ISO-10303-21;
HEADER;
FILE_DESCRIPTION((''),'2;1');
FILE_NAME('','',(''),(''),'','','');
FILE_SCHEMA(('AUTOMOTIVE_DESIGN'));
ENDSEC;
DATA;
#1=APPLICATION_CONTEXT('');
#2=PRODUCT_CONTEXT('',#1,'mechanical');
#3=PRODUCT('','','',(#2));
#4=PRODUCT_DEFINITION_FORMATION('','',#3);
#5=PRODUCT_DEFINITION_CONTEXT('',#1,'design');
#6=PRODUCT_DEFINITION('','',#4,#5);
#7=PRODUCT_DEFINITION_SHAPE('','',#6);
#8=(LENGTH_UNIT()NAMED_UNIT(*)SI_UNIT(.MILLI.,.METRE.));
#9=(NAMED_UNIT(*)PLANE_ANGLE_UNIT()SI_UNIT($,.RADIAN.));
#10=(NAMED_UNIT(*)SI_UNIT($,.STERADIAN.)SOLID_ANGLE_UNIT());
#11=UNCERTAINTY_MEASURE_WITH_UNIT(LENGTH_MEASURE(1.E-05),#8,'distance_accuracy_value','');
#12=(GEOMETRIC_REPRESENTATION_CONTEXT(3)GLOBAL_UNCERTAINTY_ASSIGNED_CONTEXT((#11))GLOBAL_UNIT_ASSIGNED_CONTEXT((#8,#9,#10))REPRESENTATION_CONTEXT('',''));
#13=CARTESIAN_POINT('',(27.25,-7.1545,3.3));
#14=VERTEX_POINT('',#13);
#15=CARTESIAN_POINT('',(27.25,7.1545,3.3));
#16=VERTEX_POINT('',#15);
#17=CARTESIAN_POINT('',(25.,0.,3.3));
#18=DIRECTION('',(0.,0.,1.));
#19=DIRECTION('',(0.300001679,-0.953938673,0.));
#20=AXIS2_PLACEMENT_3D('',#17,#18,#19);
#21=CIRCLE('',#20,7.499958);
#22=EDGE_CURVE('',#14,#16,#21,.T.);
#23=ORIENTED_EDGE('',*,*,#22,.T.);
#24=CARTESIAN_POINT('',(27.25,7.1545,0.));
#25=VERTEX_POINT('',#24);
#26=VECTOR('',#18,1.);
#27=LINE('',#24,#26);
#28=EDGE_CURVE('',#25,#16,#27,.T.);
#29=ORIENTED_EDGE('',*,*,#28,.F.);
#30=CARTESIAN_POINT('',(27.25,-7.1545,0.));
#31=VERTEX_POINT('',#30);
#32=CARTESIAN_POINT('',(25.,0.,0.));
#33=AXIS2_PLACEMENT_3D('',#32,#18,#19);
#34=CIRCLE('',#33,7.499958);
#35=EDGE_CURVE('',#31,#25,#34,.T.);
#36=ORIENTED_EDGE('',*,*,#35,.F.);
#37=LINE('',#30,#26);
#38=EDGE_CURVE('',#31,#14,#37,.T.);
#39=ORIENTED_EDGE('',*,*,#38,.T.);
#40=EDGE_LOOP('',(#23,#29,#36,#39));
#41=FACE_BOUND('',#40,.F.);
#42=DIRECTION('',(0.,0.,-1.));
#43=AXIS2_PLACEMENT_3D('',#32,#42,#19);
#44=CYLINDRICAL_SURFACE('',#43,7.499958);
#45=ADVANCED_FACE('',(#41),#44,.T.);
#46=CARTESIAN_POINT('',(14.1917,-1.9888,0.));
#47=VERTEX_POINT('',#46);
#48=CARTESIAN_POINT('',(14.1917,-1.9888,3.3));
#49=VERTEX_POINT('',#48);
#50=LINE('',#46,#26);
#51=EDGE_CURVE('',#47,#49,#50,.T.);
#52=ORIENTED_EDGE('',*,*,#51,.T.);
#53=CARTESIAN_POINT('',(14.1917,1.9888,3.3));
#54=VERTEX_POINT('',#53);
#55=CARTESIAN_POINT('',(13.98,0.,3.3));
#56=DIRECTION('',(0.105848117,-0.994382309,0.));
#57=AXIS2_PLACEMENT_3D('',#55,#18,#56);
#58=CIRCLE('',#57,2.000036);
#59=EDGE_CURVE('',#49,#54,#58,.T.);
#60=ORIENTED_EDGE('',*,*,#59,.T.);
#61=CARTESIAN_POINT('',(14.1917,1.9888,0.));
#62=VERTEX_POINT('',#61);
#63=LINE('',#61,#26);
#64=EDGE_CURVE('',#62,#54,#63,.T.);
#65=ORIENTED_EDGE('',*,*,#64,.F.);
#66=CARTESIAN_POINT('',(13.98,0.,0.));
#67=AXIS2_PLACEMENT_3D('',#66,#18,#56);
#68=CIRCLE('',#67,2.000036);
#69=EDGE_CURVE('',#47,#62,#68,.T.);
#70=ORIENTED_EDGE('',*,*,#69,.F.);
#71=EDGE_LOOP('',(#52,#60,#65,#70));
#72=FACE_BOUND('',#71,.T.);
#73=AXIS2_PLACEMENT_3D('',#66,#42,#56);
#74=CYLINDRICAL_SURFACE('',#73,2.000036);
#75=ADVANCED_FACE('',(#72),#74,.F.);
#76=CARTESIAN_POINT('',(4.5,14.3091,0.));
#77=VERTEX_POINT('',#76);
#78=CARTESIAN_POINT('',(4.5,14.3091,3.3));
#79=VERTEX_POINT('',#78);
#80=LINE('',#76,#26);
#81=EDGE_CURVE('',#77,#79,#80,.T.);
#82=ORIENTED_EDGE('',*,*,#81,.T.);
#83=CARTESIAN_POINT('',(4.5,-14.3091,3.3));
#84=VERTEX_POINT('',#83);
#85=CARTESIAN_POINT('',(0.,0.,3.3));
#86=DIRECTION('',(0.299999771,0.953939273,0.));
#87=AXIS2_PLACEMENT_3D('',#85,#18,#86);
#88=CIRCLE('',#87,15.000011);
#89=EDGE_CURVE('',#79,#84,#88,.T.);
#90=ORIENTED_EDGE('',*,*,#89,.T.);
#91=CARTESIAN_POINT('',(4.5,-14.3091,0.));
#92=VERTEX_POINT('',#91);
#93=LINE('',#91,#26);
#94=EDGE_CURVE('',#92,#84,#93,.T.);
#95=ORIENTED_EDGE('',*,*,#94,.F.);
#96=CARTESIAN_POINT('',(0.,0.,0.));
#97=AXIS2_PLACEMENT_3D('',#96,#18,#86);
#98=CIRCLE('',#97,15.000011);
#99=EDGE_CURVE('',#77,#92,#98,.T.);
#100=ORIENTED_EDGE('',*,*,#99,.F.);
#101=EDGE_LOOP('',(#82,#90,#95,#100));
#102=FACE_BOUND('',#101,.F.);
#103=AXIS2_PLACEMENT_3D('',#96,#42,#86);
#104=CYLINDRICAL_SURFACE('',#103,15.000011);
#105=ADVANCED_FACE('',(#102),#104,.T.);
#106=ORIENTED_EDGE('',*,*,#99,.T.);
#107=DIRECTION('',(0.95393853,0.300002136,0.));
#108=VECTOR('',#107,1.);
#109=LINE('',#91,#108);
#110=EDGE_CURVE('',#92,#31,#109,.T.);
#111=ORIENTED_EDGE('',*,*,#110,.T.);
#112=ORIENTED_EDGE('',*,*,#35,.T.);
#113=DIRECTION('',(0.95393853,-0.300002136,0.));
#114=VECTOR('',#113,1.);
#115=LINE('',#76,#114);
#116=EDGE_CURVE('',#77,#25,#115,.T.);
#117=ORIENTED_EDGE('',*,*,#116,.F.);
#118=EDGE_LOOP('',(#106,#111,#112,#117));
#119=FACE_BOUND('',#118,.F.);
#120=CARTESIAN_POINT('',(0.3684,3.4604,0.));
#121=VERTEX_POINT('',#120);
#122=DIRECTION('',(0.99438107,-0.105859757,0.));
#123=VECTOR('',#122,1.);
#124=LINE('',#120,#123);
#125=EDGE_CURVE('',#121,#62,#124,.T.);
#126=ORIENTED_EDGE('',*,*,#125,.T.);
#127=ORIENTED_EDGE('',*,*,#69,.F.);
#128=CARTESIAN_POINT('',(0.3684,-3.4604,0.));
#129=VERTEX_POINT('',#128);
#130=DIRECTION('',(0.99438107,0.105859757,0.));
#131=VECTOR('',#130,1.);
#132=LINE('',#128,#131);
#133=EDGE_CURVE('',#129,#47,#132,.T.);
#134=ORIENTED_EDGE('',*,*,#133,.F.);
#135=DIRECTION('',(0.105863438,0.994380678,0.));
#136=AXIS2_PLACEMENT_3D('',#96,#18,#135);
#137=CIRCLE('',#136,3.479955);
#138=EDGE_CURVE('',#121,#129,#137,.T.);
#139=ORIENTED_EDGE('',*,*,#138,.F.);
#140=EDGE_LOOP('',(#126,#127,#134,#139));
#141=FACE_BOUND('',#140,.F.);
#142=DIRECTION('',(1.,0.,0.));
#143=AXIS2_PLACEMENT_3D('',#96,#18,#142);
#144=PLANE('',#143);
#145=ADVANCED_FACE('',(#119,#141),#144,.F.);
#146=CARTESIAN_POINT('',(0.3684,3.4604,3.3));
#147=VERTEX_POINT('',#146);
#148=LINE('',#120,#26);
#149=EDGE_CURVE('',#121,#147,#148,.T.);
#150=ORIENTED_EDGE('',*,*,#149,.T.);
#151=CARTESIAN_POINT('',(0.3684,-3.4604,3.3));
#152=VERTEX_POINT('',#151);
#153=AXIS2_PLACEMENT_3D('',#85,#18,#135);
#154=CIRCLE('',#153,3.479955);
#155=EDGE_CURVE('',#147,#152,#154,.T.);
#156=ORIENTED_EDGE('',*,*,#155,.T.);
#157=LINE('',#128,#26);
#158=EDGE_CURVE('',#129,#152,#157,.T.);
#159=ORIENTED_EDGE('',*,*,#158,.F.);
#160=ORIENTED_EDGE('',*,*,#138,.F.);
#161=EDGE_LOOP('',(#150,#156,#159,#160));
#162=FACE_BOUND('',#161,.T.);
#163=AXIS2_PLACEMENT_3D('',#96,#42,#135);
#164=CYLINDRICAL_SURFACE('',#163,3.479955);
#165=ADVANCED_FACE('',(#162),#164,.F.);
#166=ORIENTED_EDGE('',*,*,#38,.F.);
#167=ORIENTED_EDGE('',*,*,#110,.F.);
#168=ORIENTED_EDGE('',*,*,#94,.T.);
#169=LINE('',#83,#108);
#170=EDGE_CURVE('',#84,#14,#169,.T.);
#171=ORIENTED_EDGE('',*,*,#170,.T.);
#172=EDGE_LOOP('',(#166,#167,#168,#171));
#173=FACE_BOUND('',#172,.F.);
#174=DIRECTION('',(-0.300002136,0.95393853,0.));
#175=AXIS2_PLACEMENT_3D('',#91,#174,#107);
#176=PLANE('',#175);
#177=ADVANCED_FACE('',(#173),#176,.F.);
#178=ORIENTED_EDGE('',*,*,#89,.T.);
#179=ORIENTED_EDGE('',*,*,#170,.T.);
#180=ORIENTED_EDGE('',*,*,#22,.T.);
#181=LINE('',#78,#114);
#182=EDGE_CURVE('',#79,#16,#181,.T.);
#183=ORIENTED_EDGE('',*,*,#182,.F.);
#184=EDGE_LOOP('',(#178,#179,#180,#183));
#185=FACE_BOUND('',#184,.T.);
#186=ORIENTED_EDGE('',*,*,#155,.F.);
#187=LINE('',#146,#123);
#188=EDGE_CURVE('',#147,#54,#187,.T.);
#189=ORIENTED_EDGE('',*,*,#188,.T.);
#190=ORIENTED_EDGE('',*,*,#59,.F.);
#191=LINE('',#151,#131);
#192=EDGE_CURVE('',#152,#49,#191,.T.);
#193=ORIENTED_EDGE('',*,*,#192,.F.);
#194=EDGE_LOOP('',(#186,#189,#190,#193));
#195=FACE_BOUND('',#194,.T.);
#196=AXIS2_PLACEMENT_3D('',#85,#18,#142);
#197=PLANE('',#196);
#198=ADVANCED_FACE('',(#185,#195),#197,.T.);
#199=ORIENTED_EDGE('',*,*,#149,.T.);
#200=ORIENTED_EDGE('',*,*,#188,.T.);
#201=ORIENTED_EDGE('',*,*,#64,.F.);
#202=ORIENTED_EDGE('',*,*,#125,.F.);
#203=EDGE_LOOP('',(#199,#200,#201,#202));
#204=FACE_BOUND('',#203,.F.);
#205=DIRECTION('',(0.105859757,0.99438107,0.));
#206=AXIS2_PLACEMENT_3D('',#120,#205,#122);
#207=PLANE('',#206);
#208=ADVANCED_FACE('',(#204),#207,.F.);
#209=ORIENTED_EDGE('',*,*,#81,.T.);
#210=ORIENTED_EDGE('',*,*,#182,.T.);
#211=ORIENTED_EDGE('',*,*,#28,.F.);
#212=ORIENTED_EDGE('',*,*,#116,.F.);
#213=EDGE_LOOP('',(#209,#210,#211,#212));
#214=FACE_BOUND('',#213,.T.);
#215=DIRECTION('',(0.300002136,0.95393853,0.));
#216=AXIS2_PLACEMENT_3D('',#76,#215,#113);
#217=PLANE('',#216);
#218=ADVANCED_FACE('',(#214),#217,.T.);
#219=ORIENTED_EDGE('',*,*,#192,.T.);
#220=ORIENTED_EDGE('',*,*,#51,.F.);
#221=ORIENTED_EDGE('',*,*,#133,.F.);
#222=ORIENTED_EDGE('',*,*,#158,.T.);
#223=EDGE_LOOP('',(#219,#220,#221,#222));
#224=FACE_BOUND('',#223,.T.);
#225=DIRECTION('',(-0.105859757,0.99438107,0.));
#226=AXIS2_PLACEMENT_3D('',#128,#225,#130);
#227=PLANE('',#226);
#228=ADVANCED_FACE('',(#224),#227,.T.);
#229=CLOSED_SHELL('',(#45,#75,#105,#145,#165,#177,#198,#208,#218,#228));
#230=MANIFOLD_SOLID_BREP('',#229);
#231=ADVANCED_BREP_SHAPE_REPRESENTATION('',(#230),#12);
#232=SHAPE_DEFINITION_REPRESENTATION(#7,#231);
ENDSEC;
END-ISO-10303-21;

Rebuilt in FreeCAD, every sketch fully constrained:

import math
import FreeCAD as App
import Part
import Sketcher

V = App.Vector
Q = App.Units.Quantity

doc = App.newDocument("Part")
params = doc.addObject("Spreadsheet::Sheet", "Params")
for row, (alias, value) in enumerate([
    ("sketch1_radius", "15 mm"),
    ("sketch1_radius2", "2 mm"),
    ("sketch1_radius3", "7.5 mm"),
    ("sketch1_radius4", "3.48 mm"),
    ("pad1_length", "3.3 mm"),
], start=1):
    params.set(f"A{row}", alias)
    params.set(f"B{row}", "=" + value)
    params.setAlias(f"B{row}", alias)

body = doc.addObject("PartDesign::Body", "Body")

# Sketch on XY plane
sketch1 = body.newObject("Sketcher::SketchObject", "Sketch")
sketch1.AttachmentSupport = (doc.getObject("XY_Plane"), [""])
sketch1.MapMode = "FlatFace"
sketch1.addGeometry([
    Part.ArcOfCircle(Part.Circle(V(0, 0, 0), V(0, 0, 1), 15), math.radians(73), math.radians(287)),  # 0
    Part.LineSegment(V(4.5, -14.3, 0), V(27.2, -7.2, 0)),  # 1
    Part.ArcOfCircle(Part.Circle(V(25, 0, 0), V(0, 0, 1), 7.5), math.radians(-73), math.radians(73)),  # 2
    Part.LineSegment(V(27.2, 7.2, 0), V(4.5, 14.3, 0)),  # 3
    Part.LineSegment(V(14.2, -2, 0), V(0.4, -3.5, 0)),  # 4
    Part.ArcOfCircle(Part.Circle(V(0, 0, 0), V(0, 0, 1), 3.5), math.radians(84), math.radians(276)),  # 5
    Part.LineSegment(V(0.4, 3.5, 0), V(14.2, 2, 0)),  # 6
    Part.ArcOfCircle(Part.Circle(V(14, 0, 0), V(0, 0, 1), 2), math.radians(-84), math.radians(84)),  # 7
], False)
sketch1.addConstraint([
    Sketcher.Constraint("Tangent", 0, 2, 1, 1),
    Sketcher.Constraint("Tangent", 1, 2, 2, 1),
    Sketcher.Constraint("Tangent", 2, 2, 3, 1),
    Sketcher.Constraint("Tangent", 3, 2, 0, 1),
    Sketcher.Constraint("Tangent", 4, 2, 5, 2),
    Sketcher.Constraint("Tangent", 5, 1, 6, 1),
    Sketcher.Constraint("Tangent", 6, 2, 7, 2),
    Sketcher.Constraint("Tangent", 7, 1, 4, 1),
    Sketcher.Constraint("Coincident", 0, 3, -1, 1),
    Sketcher.Constraint("Coincident", 5, 3, -1, 1),
    Sketcher.Constraint("PointOnObject", 2, 3, -1),
    Sketcher.Constraint("PointOnObject", 7, 3, -1),
    Sketcher.Constraint("Radius", 0, Q("15 mm")),
    Sketcher.Constraint("Radius", 7, Q("2 mm")),
    Sketcher.Constraint("Radius", 2, Q("7.5 mm")),
    Sketcher.Constraint("Radius", 5, Q("3.48 mm")),
    Sketcher.Constraint("DistanceX", -1, 1, 2, 3, Q("25 mm")),
    Sketcher.Constraint("DistanceX", -1, 1, 7, 3, Q("13.98 mm")),
])
sketch1.setExpression("Constraints[12]", "Params.sketch1_radius")
sketch1.setExpression("Constraints[13]", "Params.sketch1_radius2")
sketch1.setExpression("Constraints[14]", "Params.sketch1_radius3")
sketch1.setExpression("Constraints[15]", "Params.sketch1_radius4")
pad1 = body.newObject("PartDesign::Pad", "Pad")
pad1.Profile = sketch1
pad1.setExpression("Length", "Params.pad1_length")

doc.recompute()
